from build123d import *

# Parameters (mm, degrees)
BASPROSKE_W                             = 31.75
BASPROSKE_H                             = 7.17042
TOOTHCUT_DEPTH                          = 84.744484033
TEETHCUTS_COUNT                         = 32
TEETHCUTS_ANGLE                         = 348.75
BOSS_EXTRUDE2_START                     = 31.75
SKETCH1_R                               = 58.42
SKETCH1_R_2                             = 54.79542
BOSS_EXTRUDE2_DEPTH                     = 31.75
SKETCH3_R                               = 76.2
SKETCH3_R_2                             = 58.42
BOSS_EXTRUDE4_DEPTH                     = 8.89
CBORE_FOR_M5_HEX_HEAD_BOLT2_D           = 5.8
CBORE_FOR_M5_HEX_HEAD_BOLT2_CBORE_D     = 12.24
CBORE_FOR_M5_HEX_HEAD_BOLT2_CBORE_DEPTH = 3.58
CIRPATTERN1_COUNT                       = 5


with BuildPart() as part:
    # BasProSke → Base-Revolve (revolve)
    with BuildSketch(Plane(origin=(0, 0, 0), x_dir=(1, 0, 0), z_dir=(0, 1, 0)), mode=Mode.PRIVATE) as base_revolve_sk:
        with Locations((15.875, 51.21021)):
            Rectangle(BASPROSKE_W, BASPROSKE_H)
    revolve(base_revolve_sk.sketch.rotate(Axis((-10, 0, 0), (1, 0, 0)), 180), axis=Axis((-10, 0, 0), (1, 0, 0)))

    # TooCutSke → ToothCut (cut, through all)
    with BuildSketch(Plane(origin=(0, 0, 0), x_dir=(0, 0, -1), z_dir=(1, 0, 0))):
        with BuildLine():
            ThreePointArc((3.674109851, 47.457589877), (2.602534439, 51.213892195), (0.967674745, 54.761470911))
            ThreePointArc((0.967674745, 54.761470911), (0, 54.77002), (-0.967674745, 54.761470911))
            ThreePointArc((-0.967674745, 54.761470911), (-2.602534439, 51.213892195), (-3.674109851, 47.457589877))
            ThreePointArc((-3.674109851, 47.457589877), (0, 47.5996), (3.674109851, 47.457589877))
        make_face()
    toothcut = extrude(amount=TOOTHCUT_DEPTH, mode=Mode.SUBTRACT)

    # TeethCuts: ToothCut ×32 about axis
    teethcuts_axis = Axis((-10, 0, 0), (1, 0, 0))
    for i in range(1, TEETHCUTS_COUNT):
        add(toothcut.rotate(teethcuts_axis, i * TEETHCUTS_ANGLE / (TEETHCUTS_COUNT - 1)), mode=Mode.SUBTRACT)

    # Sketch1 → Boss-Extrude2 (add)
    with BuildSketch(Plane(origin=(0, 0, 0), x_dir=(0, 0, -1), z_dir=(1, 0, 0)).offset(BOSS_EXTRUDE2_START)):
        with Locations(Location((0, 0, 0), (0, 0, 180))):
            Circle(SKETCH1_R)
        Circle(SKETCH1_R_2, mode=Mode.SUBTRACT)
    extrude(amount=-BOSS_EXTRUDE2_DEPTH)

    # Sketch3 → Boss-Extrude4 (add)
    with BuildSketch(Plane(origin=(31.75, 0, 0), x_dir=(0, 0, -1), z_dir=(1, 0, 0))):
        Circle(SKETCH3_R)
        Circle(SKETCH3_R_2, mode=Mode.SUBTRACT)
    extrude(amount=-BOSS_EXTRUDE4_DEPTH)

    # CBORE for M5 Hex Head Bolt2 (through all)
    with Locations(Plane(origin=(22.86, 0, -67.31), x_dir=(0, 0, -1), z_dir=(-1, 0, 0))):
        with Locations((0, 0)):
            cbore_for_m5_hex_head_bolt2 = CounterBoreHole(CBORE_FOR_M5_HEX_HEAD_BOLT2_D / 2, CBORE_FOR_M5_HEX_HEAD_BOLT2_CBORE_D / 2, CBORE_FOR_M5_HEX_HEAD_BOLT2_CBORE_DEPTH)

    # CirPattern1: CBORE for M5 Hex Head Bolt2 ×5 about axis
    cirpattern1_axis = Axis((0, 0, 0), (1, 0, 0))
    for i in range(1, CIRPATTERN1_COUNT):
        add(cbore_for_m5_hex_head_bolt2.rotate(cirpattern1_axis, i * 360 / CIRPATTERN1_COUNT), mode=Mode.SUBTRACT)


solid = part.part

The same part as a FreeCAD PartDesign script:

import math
import FreeCAD as App
import Part
import Sketcher

V = App.Vector
Q = App.Units.Quantity

doc = App.newDocument("Part")
body = doc.addObject("PartDesign::Body", "Body")

# Sketch on XZ plane
sketch1 = body.newObject("Sketcher::SketchObject", "Sketch")
sketch1.AttachmentSupport = (doc.getObject("XZ_Plane"), [""])
sketch1.MapMode = "FlatFace"
sketch1.addGeometry(Part.LineSegment(V(0, -54.79542, 0), V(0, -47.625, 0)), False)
sketch1.addGeometry(Part.LineSegment(V(0, -47.625, 0), V(31.75, -47.625, 0)), False)
sketch1.addGeometry(Part.LineSegment(V(31.75, -47.625, 0), V(31.75, -54.79542, 0)), False)
sketch1.addGeometry(Part.LineSegment(V(31.75, -54.79542, 0), V(0, -54.79542, 0)), False)
sketch1.addConstraint(Sketcher.Constraint("Coincident", 0, 2, 1, 1))
sketch1.addConstraint(Sketcher.Constraint("Coincident", 1, 2, 2, 1))
sketch1.addConstraint(Sketcher.Constraint("Coincident", 2, 2, 3, 1))
sketch1.addConstraint(Sketcher.Constraint("Coincident", 3, 2, 0, 1))
sketch1.addConstraint(Sketcher.Constraint("Vertical", 0))
sketch1.addConstraint(Sketcher.Constraint("Horizontal", 1))
sketch1.addConstraint(Sketcher.Constraint("Vertical", 2))
sketch1.addConstraint(Sketcher.Constraint("Horizontal", 3))
sketch1.addConstraint(Sketcher.Constraint("PointOnObject", 0, 2, -2))
sketch1.addConstraint(Sketcher.Constraint("DistanceX", 1, 1, 1, 2, Q("1.25 in")))
sketch1.addConstraint(Sketcher.Constraint("DistanceY", 0, 1, 0, 2, Q("0.2823 in")))
sketch1.addConstraint(Sketcher.Constraint("DistanceY", 0, 2, -1, 1, Q("1.875 in")))
revolution = body.newObject("PartDesign::Revolution", "Revolution")
revolution.Profile = sketch1
revolution.ReferenceAxis = (sketch1, ["H_Axis"])
revolution.Angle = 360

# Sketch on YZ plane
sketch2 = body.newObject("Sketcher::SketchObject", "Sketch001")
sketch2.AttachmentSupport = (doc.getObject("YZ_Plane"), [""])
sketch2.MapMode = "FlatFace"
sketch2.addGeometry(Part.ArcOfCircle(Part.Circle(V(42.388397, 21.21491, 0), V(0, 0, 1), 25.4), math.radians(-78.487921), math.radians(-60.847954)), False)
sketch2.addGeometry(Part.ArcOfCircle(Part.Circle(V(0.000003, 0, 0), V(0, 0, 1), 54.770017), math.radians(-1.012353), math.radians(1.012353)), False)
sketch2.addGeometry(Part.ArcOfCircle(Part.Circle(V(42.388397, -21.21491, 0), V(0, 0, 1), 25.4), math.radians(60.847954), math.radians(78.487921)), False)
sketch2.addGeometry(Part.ArcOfCircle(Part.Circle(V(0, 0, 0), V(0, 0, 1), 47.5996), math.radians(-4.42694), math.radians(4.42694)), False)
sketch2.addConstraint(Sketcher.Constraint("Coincident", 0, 2, 1, 1))
sketch2.addConstraint(Sketcher.Constraint("Coincident", 1, 2, 2, 1))
sketch2.addConstraint(Sketcher.Constraint("Coincident", 2, 2, 3, 2))
sketch2.addConstraint(Sketcher.Constraint("Coincident", 3, 1, 0, 1))
sketch2.addConstraint(Sketcher.Constraint("Coincident", 1, 3, -1, 1))
sketch2.addConstraint(Sketcher.Constraint("Coincident", 3, 3, -1, 1))
sketch2.addConstraint(Sketcher.Constraint("Equal", 0, 2))
sketch2.addConstraint(Sketcher.Constraint("Symmetric", 0, 3, 2, 3, -1))
sketch2.addConstraint(Sketcher.Constraint("Radius", 0, Q("1 in")))
sketch2.addConstraint(Sketcher.Constraint("Radius", 3, Q("1.874 in")))
sketch2.addConstraint(Sketcher.Constraint("Radius", 1, Q("2.1562999 in")))
sketch2.addConstraint(Sketcher.Constraint("DistanceY", 3, 1, 2, 2, Q("0.2893 in")))
sketch2.addConstraint(Sketcher.Constraint("DistanceY", 2, 2, 0, 3, Q("17.5408 mm")))
pocket1 = body.newObject("PartDesign::Pocket", "Pocket")
pocket1.Profile = sketch2
pocket1.Type = "ThroughAll"
pocket1.Reversed = True
doc.recompute()

polarpattern = body.newObject("PartDesign::PolarPattern", "PolarPattern")
polarpattern.Originals = [pocket1]
polarpattern.Axis = (doc.getObject("X_Axis"), [""])
polarpattern.Angle = 360
polarpattern.Occurrences = 32
body.Tip = polarpattern

# Sketch on YZ plane
sketch3 = body.newObject("Sketcher::SketchObject", "Sketch002")
sketch3.AttachmentSupport = (doc.getObject("YZ_Plane"), [""])
sketch3.MapMode = "FlatFace"
sketch3.AttachmentOffset = App.Placement(V(0, 0, 1.25 * 25.4), App.Rotation())
sketch3.addGeometry(Part.Circle(V(0, 0, 0), V(0, 0, 1), 58.42), False)
sketch3.addGeometry(Part.Circle(V(0, 0, 0), V(0, 0, 1), 54.79542), False)
sketch3.addConstraint(Sketcher.Constraint("Coincident", 0, 3, -1, 1))
sketch3.addConstraint(Sketcher.Constraint("Coincident", 1, 3, -1, 1))
sketch3.addConstraint(Sketcher.Constraint("Diameter", 0, Q("4.6 in")))
sketch3.addConstraint(Sketcher.Constraint("Diameter", 1, Q("4.3146 in")))
pad1 = body.newObject("PartDesign::Pad", "Pad")
pad1.Profile = sketch3
pad1.Length = Q("1.25 in")
pad1.Reversed = True

# Sketch on YZ plane
sketch4 = body.newObject("Sketcher::SketchObject", "Sketch003")
sketch4.AttachmentSupport = (doc.getObject("YZ_Plane"), [""])
sketch4.MapMode = "FlatFace"
sketch4.AttachmentOffset = App.Placement(V(0, 0, 1.25 * 25.4), App.Rotation())
sketch4.addGeometry(Part.Circle(V(0, 0, 0), V(0, 0, 1), 76.2), False)
sketch4.addGeometry(Part.Circle(V(0, 0, 0), V(0, 0, 1), 58.42), False)
sketch4.addConstraint(Sketcher.Constraint("Coincident", 0, 3, -1, 1))
sketch4.addConstraint(Sketcher.Constraint("Coincident", 1, 3, -1, 1))
sketch4.addConstraint(Sketcher.Constraint("Diameter", 0, Q("6 in")))
sketch4.addConstraint(Sketcher.Constraint("Diameter", 1, Q("4.6 in")))
pad2 = body.newObject("PartDesign::Pad", "Pad001")
pad2.Profile = sketch4
pad2.Length = Q("0.35 in")
pad2.Reversed = True

# Sketch on YZ plane
sketch5 = body.newObject("Sketcher::SketchObject", "Sketch004")
sketch5.AttachmentSupport = (doc.getObject("YZ_Plane"), [""])
sketch5.MapMode = "FlatFace"
sketch5.AttachmentOffset = App.Placement(V(0, 0, 0.9 * 25.4), App.Rotation())
sketch5.addGeometry(Part.Circle(V(0, -67.31, 0), V(0, 0, 1), 2.9), False)
sketch5.addConstraint(Sketcher.Constraint("PointOnObject", 0, 3, -2))
sketch5.addConstraint(Sketcher.Constraint("Diameter", 0, Q("5.8 mm")))
sketch5.addConstraint(Sketcher.Constraint("DistanceY", 0, 3, -1, 1, Q("2.65 in")))
doc.recompute()
hole = body.newObject("PartDesign::Hole", "Hole")
hole.Profile = sketch5
hole.ThreadType = "None"
hole.Diameter = 5.8
hole.DepthType = "ThroughAll"
hole.HoleCutType = "Counterbore"
hole.HoleCutDiameter = 12.24
hole.HoleCutDepth = 3.58
hole.Reversed = True
doc.recompute()

polarpattern2 = body.newObject("PartDesign::PolarPattern", "PolarPattern001")
polarpattern2.Originals = [hole]
polarpattern2.Axis = (doc.getObject("X_Axis"), [""])
polarpattern2.Angle = 360
polarpattern2.Occurrences = 5
body.Tip = polarpattern2

doc.recompute()
